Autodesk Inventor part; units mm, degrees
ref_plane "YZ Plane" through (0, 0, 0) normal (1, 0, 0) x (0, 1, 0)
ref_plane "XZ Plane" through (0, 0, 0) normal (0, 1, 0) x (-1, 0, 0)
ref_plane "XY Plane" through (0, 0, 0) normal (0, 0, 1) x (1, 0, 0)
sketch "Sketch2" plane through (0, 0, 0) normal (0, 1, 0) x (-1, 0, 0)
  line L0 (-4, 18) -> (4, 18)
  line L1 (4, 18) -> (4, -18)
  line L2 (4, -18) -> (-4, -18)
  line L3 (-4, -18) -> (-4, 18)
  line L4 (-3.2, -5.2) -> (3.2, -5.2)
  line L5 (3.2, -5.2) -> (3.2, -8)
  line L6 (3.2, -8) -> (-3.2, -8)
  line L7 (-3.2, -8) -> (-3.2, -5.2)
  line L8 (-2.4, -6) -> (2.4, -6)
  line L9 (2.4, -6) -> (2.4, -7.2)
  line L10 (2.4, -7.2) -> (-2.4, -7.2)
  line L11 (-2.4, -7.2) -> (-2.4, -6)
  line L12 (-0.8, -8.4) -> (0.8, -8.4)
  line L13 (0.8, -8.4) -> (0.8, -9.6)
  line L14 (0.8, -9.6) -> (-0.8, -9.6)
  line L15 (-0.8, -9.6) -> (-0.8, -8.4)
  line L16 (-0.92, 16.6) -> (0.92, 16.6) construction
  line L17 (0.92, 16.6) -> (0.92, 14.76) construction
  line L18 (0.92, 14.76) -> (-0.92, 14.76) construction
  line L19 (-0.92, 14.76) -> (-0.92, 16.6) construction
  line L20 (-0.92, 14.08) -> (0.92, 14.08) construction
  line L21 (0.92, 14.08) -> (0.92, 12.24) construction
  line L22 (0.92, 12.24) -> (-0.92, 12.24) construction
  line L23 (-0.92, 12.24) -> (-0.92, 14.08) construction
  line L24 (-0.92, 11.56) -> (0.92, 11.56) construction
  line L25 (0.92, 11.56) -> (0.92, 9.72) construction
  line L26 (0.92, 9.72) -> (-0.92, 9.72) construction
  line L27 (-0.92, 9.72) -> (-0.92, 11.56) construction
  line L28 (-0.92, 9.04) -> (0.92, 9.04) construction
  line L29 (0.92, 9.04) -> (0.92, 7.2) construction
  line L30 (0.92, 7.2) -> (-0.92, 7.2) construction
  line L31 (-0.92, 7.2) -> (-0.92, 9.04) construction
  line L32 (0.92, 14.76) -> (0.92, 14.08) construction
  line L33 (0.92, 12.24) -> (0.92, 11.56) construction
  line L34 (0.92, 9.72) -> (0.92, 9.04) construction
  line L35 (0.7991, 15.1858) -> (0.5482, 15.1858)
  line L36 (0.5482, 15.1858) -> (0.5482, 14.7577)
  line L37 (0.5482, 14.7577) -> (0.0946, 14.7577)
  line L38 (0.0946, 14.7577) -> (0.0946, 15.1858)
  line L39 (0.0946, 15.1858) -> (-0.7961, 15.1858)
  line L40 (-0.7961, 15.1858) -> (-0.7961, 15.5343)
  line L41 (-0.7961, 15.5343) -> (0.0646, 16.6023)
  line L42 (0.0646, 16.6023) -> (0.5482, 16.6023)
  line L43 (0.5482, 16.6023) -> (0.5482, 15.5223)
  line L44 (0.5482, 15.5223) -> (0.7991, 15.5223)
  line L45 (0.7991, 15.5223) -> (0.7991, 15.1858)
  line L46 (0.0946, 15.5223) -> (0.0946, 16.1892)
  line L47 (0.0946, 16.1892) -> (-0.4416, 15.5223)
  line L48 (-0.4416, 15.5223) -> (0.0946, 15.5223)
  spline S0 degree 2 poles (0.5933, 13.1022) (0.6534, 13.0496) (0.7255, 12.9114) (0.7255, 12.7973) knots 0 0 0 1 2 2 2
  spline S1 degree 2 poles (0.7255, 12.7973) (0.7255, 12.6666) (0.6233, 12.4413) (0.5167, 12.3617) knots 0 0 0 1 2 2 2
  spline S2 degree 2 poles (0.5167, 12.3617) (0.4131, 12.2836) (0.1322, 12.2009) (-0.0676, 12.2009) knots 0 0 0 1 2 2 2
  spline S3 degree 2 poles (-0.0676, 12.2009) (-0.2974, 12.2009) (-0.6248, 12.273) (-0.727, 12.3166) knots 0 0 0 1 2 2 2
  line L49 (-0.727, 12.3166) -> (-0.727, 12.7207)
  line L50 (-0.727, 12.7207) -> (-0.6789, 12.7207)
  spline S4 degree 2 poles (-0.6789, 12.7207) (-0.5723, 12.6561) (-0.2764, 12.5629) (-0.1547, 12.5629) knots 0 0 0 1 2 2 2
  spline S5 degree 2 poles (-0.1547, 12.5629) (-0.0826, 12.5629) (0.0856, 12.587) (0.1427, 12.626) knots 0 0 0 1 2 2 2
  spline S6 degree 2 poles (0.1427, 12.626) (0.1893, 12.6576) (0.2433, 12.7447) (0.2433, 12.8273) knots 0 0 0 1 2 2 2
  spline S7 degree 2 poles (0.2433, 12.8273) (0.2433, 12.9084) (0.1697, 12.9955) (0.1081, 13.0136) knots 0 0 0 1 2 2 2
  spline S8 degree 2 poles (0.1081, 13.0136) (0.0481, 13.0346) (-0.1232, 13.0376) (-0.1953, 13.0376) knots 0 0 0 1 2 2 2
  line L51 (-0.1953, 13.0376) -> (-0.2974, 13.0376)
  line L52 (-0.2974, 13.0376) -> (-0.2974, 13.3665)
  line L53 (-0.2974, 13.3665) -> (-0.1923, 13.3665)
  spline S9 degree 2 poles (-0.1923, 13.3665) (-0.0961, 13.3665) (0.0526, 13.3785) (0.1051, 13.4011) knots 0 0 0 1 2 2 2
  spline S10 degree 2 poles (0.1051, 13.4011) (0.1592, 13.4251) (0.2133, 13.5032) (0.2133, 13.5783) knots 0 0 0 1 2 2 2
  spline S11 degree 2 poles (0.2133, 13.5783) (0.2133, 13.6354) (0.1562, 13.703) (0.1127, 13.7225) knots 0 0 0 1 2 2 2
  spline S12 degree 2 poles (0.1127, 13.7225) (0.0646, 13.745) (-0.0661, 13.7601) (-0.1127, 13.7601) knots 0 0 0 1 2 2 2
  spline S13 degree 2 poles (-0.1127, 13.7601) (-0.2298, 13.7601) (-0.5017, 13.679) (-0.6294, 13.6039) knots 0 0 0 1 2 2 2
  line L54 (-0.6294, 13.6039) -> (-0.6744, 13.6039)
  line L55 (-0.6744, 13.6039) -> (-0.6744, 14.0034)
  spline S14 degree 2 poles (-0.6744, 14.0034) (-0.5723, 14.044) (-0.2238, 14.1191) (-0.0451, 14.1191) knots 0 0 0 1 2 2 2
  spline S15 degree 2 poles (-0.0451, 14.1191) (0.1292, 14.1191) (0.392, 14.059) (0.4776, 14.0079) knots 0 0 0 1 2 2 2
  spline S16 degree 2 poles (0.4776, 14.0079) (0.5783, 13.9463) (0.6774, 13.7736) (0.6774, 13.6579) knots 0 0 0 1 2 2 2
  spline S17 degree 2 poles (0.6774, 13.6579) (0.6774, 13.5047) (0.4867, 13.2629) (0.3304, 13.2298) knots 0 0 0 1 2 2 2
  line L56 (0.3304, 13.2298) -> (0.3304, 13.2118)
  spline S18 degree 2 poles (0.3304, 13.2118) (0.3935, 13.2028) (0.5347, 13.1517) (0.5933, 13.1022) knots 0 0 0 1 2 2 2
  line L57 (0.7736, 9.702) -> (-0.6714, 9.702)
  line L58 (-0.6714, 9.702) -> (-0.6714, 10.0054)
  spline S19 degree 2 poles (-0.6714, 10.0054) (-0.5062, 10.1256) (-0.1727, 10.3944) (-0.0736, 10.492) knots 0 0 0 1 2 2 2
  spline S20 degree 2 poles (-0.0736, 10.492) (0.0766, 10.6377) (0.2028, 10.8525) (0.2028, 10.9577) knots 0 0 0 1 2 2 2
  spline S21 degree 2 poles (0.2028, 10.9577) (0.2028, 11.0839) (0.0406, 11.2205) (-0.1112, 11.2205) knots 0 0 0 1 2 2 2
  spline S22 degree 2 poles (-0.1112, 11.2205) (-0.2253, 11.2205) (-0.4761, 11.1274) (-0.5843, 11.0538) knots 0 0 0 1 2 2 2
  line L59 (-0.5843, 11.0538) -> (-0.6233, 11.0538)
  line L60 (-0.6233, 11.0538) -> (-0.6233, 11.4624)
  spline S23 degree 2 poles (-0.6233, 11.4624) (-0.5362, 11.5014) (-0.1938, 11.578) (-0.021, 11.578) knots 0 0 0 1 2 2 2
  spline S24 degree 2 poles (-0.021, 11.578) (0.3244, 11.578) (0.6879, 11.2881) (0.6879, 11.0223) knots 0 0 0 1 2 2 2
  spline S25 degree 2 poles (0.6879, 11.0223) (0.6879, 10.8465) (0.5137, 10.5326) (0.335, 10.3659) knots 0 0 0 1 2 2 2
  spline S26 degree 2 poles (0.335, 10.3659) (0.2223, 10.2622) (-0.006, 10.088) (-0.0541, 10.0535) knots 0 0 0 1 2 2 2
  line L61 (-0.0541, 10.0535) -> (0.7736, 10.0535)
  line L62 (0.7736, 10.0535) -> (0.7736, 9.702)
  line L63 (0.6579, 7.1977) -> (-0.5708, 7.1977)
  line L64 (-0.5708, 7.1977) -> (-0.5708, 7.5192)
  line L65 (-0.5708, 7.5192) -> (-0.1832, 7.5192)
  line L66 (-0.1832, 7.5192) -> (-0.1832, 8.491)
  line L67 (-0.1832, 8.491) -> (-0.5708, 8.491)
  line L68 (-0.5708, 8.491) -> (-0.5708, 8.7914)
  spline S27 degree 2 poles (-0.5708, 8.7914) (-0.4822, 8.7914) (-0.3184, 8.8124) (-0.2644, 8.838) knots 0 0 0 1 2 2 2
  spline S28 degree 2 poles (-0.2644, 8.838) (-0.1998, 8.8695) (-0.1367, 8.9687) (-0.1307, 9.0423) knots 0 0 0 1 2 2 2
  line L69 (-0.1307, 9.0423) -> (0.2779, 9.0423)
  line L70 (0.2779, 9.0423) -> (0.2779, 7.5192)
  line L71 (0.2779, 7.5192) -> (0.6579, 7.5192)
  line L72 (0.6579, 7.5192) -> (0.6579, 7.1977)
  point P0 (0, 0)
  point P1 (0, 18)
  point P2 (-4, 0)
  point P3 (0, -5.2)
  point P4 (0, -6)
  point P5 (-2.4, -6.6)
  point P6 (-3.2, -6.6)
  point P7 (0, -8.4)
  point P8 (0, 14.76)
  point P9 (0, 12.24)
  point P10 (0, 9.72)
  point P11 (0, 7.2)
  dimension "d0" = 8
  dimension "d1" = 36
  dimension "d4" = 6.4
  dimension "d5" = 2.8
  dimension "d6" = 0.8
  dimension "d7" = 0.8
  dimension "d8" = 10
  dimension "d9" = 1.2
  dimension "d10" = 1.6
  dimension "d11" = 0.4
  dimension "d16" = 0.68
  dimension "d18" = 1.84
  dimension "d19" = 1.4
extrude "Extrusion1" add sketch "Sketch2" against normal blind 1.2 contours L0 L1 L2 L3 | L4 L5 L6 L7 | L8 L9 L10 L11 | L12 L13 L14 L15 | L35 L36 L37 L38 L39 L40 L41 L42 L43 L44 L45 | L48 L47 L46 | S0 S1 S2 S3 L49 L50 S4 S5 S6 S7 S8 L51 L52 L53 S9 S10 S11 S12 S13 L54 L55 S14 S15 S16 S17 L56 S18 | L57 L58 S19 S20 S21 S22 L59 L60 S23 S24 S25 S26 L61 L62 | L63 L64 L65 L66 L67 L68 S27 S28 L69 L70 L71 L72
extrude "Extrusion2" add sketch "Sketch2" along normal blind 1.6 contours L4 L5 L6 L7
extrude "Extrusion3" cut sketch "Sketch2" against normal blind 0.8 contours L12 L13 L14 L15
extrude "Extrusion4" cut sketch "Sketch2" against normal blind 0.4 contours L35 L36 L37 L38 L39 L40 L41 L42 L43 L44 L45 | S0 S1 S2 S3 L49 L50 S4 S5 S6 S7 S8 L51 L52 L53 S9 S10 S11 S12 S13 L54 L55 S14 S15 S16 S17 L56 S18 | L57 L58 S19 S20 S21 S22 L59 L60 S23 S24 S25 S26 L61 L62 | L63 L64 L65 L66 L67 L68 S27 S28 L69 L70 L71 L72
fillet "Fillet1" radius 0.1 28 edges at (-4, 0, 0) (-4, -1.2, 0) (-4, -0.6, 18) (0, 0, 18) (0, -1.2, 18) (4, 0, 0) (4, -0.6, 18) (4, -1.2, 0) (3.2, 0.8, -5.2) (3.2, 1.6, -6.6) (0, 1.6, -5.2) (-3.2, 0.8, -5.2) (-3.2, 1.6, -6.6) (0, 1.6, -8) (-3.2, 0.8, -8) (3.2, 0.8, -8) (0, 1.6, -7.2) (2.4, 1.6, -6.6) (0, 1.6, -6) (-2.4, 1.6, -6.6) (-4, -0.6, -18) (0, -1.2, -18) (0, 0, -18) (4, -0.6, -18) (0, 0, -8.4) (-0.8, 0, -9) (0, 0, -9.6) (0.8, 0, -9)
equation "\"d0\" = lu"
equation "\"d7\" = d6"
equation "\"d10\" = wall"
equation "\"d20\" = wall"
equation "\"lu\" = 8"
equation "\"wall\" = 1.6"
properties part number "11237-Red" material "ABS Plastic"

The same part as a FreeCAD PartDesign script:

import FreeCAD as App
import Part
import Sketcher

V = App.Vector
Q = App.Units.Quantity


def edges_at(feature, points):
    """Names of the edges that pass closest to the given points."""
    edges = feature.Shape.Edges
    near = lambda p: min(range(len(edges)), key=lambda i: edges[i].distToShape(Part.Vertex(*p))[0])
    return sorted({f"Edge{near(p) + 1}" for p in points})


def add_polygon(sketch, points):
    """Adds a closed chain of lines whose ends are joined by coincident constraints."""
    first, n = sketch.GeometryCount, len(points)
    for a, b in zip(points, points[1:] + points[:1]):
        sketch.addGeometry(Part.LineSegment(App.Vector(*a, 0), App.Vector(*b, 0)), False)
    for i in range(n):
        sketch.addConstraint(Sketcher.Constraint("Coincident", first + i, 2, first + (i + 1) % n, 1))

doc = App.newDocument("Part")
body = doc.addObject("PartDesign::Body", "Body")

# Sketch on XZ plane
sketch1 = body.newObject("Sketcher::SketchObject", "Sketch")
sketch1.AttachmentSupport = (doc.getObject("XZ_Plane"), [""])
sketch1.MapMode = "FlatFace"
add_polygon(sketch1, [(-4, 18), (4, 18), (4, -18), (-4, -18)])  # lines 0-3
sketch1.addConstraint([
    Sketcher.Constraint("Horizontal", 0),
    Sketcher.Constraint("Vertical", 1),
    Sketcher.Constraint("Horizontal", 2),
    Sketcher.Constraint("Vertical", 3),
    Sketcher.Constraint("Symmetric", 0, 2, 2, 2, -1, 1),
    Sketcher.Constraint("DistanceX", 0, 1, 0, 2, Q("8 mm")),
    Sketcher.Constraint("DistanceY", 1, 2, 1, 1, Q("36 mm")),
])
pad1 = body.newObject("PartDesign::Pad", "Pad")
pad1.Profile = sketch1
pad1.Length = 1.2

# Sketch on XZ plane
sketch2 = body.newObject("Sketcher::SketchObject", "Sketch001")
sketch2.AttachmentSupport = (doc.getObject("XZ_Plane"), [""])
sketch2.MapMode = "FlatFace"
add_polygon(sketch2, [(-3.2, -5.2), (3.2, -5.2), (3.2, -8), (-3.2, -8)])  # lines 0-3
add_polygon(sketch2, [(2.4, -7.2), (2.4, -6), (-2.4, -6), (-2.4, -7.2)])  # lines 4-7
sketch2.addConstraint([
    Sketcher.Constraint("Horizontal", 0),
    Sketcher.Constraint("Vertical", 1),
    Sketcher.Constraint("Horizontal", 2),
    Sketcher.Constraint("Vertical", 3),
    Sketcher.Constraint("Vertical", 4),
    Sketcher.Constraint("Horizontal", 5),
    Sketcher.Constraint("Vertical", 6),
    Sketcher.Constraint("Horizontal", 7),
    Sketcher.Constraint("DistanceX", 0, 1, 0, 2, Q("6.4 mm")),
    Sketcher.Constraint("DistanceY", 1, 2, 1, 1, Q("2.8 mm")),
    Sketcher.Constraint("DistanceY", 4, 1, 4, 2, Q("1.2 mm")),
    Sketcher.Constraint("DistanceY", 1, 2, -1, 1, Q("8 mm")),
    Sketcher.Constraint("DistanceX", 4, 2, 0, 2, Q("0.8 mm")),
    Sketcher.Constraint("DistanceY", 4, 2, 0, 2, Q("0.8 mm")),
    Sketcher.Constraint("DistanceX", 3, 2, 5, 2, Q("0.8 mm")),
    Sketcher.Constraint("DistanceX", -1, 1, 0, 2, Q("3.2 mm")),
])
pad2 = body.newObject("PartDesign::Pad", "Pad001")
pad2.Profile = sketch2
pad2.Length = 1.6
pad2.Reversed = True

# Sketch on XZ plane
sketch3 = body.newObject("Sketcher::SketchObject", "Sketch002")
sketch3.AttachmentSupport = (doc.getObject("XZ_Plane"), [""])
sketch3.MapMode = "FlatFace"
add_polygon(sketch3, [(-0.8, -8.4), (0.8, -8.4), (0.8, -9.6), (-0.8, -9.6)])  # lines 0-3
sketch3.addConstraint([
    Sketcher.Constraint("Horizontal", 0),
    Sketcher.Constraint("Vertical", 1),
    Sketcher.Constraint("Horizontal", 2),
    Sketcher.Constraint("Vertical", 3),
    Sketcher.Constraint("DistanceX", 0, 1, 0, 2, Q("1.6 mm")),
    Sketcher.Constraint("DistanceY", 1, 2, 1, 1, Q("1.2 mm")),
    Sketcher.Constraint("DistanceX", -1, 1, 0, 2, Q("0.8 mm")),
    Sketcher.Constraint("DistanceY", 0, 2, -1, 1, Q("8.4 mm")),
])
pocket1 = body.newObject("PartDesign::Pocket", "Pocket")
pocket1.Profile = sketch3
pocket1.Length = 0.8
pocket1.Reversed = True

# Sketch on XZ plane
sketch4 = body.newObject("Sketcher::SketchObject", "Sketch003")
sketch4.AttachmentSupport = (doc.getObject("XZ_Plane"), [""])
sketch4.MapMode = "FlatFace"
add_polygon(sketch4, [(-0.5482, 15.1858), (-0.7991, 15.1858), (-0.7991, 15.5223), (-0.5482, 15.5223), (-0.5482, 16.6023), (-0.0646, 16.6023), (0.7961, 15.5343), (0.7961, 15.1858), (-0.0946, 15.1858), (-0.0946, 14.7577), (-0.5482, 14.7577)])  # lines 0-10
add_polygon(sketch4, [(-0.0946, 16.1892), (-0.0946, 15.5223), (0.4416, 15.5223)])  # lines 11-13
sketch4.addGeometry(Part.BSplineCurve([V(-0.5933, 13.1022, 0), V(-0.6534, 13.0496, 0), V(-0.7255, 12.9114, 0), V(-0.7255, 12.7973, 0)], [3, 1, 3], [0, 1, 2], False, 2, [1, 1, 1, 1], False), False)  # 14
sketch4.addGeometry(Part.BSplineCurve([V(-0.3304, 13.2118, 0), V(-0.3935, 13.2028, 0), V(-0.5347, 13.1517, 0), V(-0.5933, 13.1022, 0)], [3, 1, 3], [0, 1, 2], False, 2, [1, 1, 1, 1], False), False)  # 15
sketch4.addGeometry(Part.LineSegment(V(-0.3304, 13.2118, 0), V(-0.3304, 13.2298, 0)), False)  # 16
sketch4.addGeometry(Part.BSplineCurve([V(-0.6774, 13.6579, 0), V(-0.6774, 13.5047, 0), V(-0.4867, 13.2629, 0), V(-0.3304, 13.2298, 0)], [3, 1, 3], [0, 1, 2], False, 2, [1, 1, 1, 1], False), False)  # 17
sketch4.addGeometry(Part.BSplineCurve([V(-0.4776, 14.0079, 0), V(-0.5783, 13.9463, 0), V(-0.6774, 13.7736, 0), V(-0.6774, 13.6579, 0)], [3, 1, 3], [0, 1, 2], False, 2, [1, 1, 1, 1], False), False)  # 18
sketch4.addGeometry(Part.BSplineCurve([V(0.0451, 14.1191, 0), V(-0.1292, 14.1191, 0), V(-0.392, 14.059, 0), V(-0.4776, 14.0079, 0)], [3, 1, 3], [0, 1, 2], False, 2, [1, 1, 1, 1], False), False)  # 19
sketch4.addGeometry(Part.BSplineCurve([V(0.6744, 14.0034, 0), V(0.5723, 14.044, 0), V(0.2238, 14.1191, 0), V(0.0451, 14.1191, 0)], [3, 1, 3], [0, 1, 2], False, 2, [1, 1, 1, 1], False), False)  # 20
sketch4.addGeometry(Part.LineSegment(V(0.6744, 14.0034, 0), V(0.6744, 13.6039, 0)), False)  # 21
sketch4.addGeometry(Part.LineSegment(V(0.6744, 13.6039, 0), V(0.6294, 13.6039, 0)), False)  # 22
sketch4.addGeometry(Part.BSplineCurve([V(0.1127, 13.7601, 0), V(0.2298, 13.7601, 0), V(0.5017, 13.679, 0), V(0.6294, 13.6039, 0)], [3, 1, 3], [0, 1, 2], False, 2, [1, 1, 1, 1], False), False)  # 23
sketch4.addGeometry(Part.BSplineCurve([V(-0.1127, 13.7225, 0), V(-0.0646, 13.745, 0), V(0.0661, 13.7601, 0), V(0.1127, 13.7601, 0)], [3, 1, 3], [0, 1, 2], False, 2, [1, 1, 1, 1], False), False)  # 24
sketch4.addGeometry(Part.BSplineCurve([V(-0.2133, 13.5783, 0), V(-0.2133, 13.6354, 0), V(-0.1562, 13.703, 0), V(-0.1127, 13.7225, 0)], [3, 1, 3], [0, 1, 2], False, 2, [1, 1, 1, 1], False), False)  # 25
sketch4.addGeometry(Part.BSplineCurve([V(-0.1051, 13.4011, 0), V(-0.1592, 13.4251, 0), V(-0.2133, 13.5032, 0), V(-0.2133, 13.5783, 0)], [3, 1, 3], [0, 1, 2], False, 2, [1, 1, 1, 1], False), False)  # 26
sketch4.addGeometry(Part.BSplineCurve([V(0.1923, 13.3665, 0), V(0.0961, 13.3665, 0), V(-0.0526, 13.3785, 0), V(-0.1051, 13.4011, 0)], [3, 1, 3], [0, 1, 2], False, 2, [1, 1, 1, 1], False), False)  # 27
sketch4.addGeometry(Part.LineSegment(V(0.1923, 13.3665, 0), V(0.2974, 13.3665, 0)), False)  # 28
sketch4.addGeometry(Part.LineSegment(V(0.2974, 13.3665, 0), V(0.2974, 13.0376, 0)), False)  # 29
sketch4.addGeometry(Part.LineSegment(V(0.2974, 13.0376, 0), V(0.1953, 13.0376, 0)), False)  # 30
sketch4.addGeometry(Part.BSplineCurve([V(-0.1081, 13.0136, 0), V(-0.0481, 13.0346, 0), V(0.1232, 13.0376, 0), V(0.1953, 13.0376, 0)], [3, 1, 3], [0, 1, 2], False, 2, [1, 1, 1, 1], False), False)  # 31
sketch4.addGeometry(Part.BSplineCurve([V(-0.2433, 12.8273, 0), V(-0.2433, 12.9084, 0), V(-0.1697, 12.9955, 0), V(-0.1081, 13.0136, 0)], [3, 1, 3], [0, 1, 2], False, 2, [1, 1, 1, 1], False), False)  # 32
sketch4.addGeometry(Part.BSplineCurve([V(-0.1427, 12.626, 0), V(-0.1893, 12.6576, 0), V(-0.2433, 12.7447, 0), V(-0.2433, 12.8273, 0)], [3, 1, 3], [0, 1, 2], False, 2, [1, 1, 1, 1], False), False)  # 33
sketch4.addGeometry(Part.BSplineCurve([V(0.1547, 12.5629, 0), V(0.0826, 12.5629, 0), V(-0.0856, 12.587, 0), V(-0.1427, 12.626, 0)], [3, 1, 3], [0, 1, 2], False, 2, [1, 1, 1, 1], False), False)  # 34
sketch4.addGeometry(Part.BSplineCurve([V(0.6789, 12.7207, 0), V(0.5723, 12.6561, 0), V(0.2764, 12.5629, 0), V(0.1547, 12.5629, 0)], [3, 1, 3], [0, 1, 2], False, 2, [1, 1, 1, 1], False), False)  # 35
sketch4.addGeometry(Part.LineSegment(V(0.6789, 12.7207, 0), V(0.727, 12.7207, 0)), False)  # 36
sketch4.addGeometry(Part.LineSegment(V(0.727, 12.7207, 0), V(0.727, 12.3166, 0)), False)  # 37
sketch4.addGeometry(Part.BSplineCurve([V(0.0676, 12.2009, 0), V(0.2974, 12.2009, 0), V(0.6248, 12.273, 0), V(0.727, 12.3166, 0)], [3, 1, 3], [0, 1, 2], False, 2, [1, 1, 1, 1], False), False)  # 38
sketch4.addGeometry(Part.BSplineCurve([V(-0.5167, 12.3617, 0), V(-0.4131, 12.2836, 0), V(-0.1322, 12.2009, 0), V(0.0676, 12.2009, 0)], [3, 1, 3], [0, 1, 2], False, 2, [1, 1, 1, 1], False), False)  # 39
sketch4.addGeometry(Part.BSplineCurve([V(-0.7255, 12.7973, 0), V(-0.7255, 12.6666, 0), V(-0.6233, 12.4413, 0), V(-0.5167, 12.3617, 0)], [3, 1, 3], [0, 1, 2], False, 2, [1, 1, 1, 1], False), False)  # 40
sketch4.addGeometry(Part.LineSegment(V(0.6714, 9.702, 0), V(-0.7736, 9.702, 0)), False)  # 41
sketch4.addGeometry(Part.LineSegment(V(-0.7736, 9.702, 0), V(-0.7736, 10.0535, 0)), False)  # 42
sketch4.addGeometry(Part.LineSegment(V(-0.7736, 10.0535, 0), V(0.0541, 10.0535, 0)), False)  # 43
sketch4.addGeometry(Part.BSplineCurve([V(-0.335, 10.3659, 0), V(-0.2223, 10.2622, 0), V(0.006, 10.088, 0), V(0.0541, 10.0535, 0)], [3, 1, 3], [0, 1, 2], False, 2, [1, 1, 1, 1], False), False)  # 44
sketch4.addGeometry(Part.BSplineCurve([V(-0.6879, 11.0223, 0), V(-0.6879, 10.8465, 0), V(-0.5137, 10.5326, 0), V(-0.335, 10.3659, 0)], [3, 1, 3], [0, 1, 2], False, 2, [1, 1, 1, 1], False), False)  # 45
sketch4.addGeometry(Part.BSplineCurve([V(0.021, 11.578, 0), V(-0.3244, 11.578, 0), V(-0.6879, 11.2881, 0), V(-0.6879, 11.0223, 0)], [3, 1, 3], [0, 1, 2], False, 2, [1, 1, 1, 1], False), False)  # 46
sketch4.addGeometry(Part.BSplineCurve([V(0.6233, 11.4624, 0), V(0.5362, 11.5014, 0), V(0.1938, 11.578, 0), V(0.021, 11.578, 0)], [3, 1, 3], [0, 1, 2], False, 2, [1, 1, 1, 1], False), False)  # 47
sketch4.addGeometry(Part.LineSegment(V(0.6233, 11.4624, 0), V(0.6233, 11.0538, 0)), False)  # 48
sketch4.addGeometry(Part.LineSegment(V(0.6233, 11.0538, 0), V(0.5843, 11.0538, 0)), False)  # 49
sketch4.addGeometry(Part.BSplineCurve([V(0.1112, 11.2205, 0), V(0.2253, 11.2205, 0), V(0.4761, 11.1274, 0), V(0.5843, 11.0538, 0)], [3, 1, 3], [0, 1, 2], False, 2, [1, 1, 1, 1], False), False)  # 50
sketch4.addGeometry(Part.BSplineCurve([V(-0.2028, 10.9577, 0), V(-0.2028, 11.0839, 0), V(-0.0406, 11.2205, 0), V(0.1112, 11.2205, 0)], [3, 1, 3], [0, 1, 2], False, 2, [1, 1, 1, 1], False), False)  # 51
sketch4.addGeometry(Part.BSplineCurve([V(0.0736, 10.492, 0), V(-0.0766, 10.6377, 0), V(-0.2028, 10.8525, 0), V(-0.2028, 10.9577, 0)], [3, 1, 3], [0, 1, 2], False, 2, [1, 1, 1, 1], False), False)  # 52
sketch4.addGeometry(Part.BSplineCurve([V(0.6714, 10.0054, 0), V(0.5062, 10.1256, 0), V(0.1727, 10.3944, 0), V(0.0736, 10.492, 0)], [3, 1, 3], [0, 1, 2], False, 2, [1, 1, 1, 1], False), False)  # 53
sketch4.addGeometry(Part.LineSegment(V(0.6714, 10.0054, 0), V(0.6714, 9.702, 0)), False)  # 54
sketch4.addGeometry(Part.LineSegment(V(0.5708, 7.1977, 0), V(-0.6579, 7.1977, 0)), False)  # 55
sketch4.addGeometry(Part.LineSegment(V(-0.6579, 7.1977, 0), V(-0.6579, 7.5192, 0)), False)  # 56
sketch4.addGeometry(Part.LineSegment(V(-0.6579, 7.5192, 0), V(-0.2779, 7.5192, 0)), False)  # 57
sketch4.addGeometry(Part.LineSegment(V(-0.2779, 7.5192, 0), V(-0.2779, 9.0423, 0)), False)  # 58
sketch4.addGeometry(Part.LineSegment(V(-0.2779, 9.0423, 0), V(0.1307, 9.0423, 0)), False)  # 59
sketch4.addGeometry(Part.BSplineCurve([V(0.2644, 8.838, 0), V(0.1998, 8.8695, 0), V(0.1367, 8.9687, 0), V(0.1307, 9.0423, 0)], [3, 1, 3], [0, 1, 2], False, 2, [1, 1, 1, 1], False), False)  # 60
sketch4.addGeometry(Part.BSplineCurve([V(0.5708, 8.7914, 0), V(0.4822, 8.7914, 0), V(0.3184, 8.8124, 0), V(0.2644, 8.838, 0)], [3, 1, 3], [0, 1, 2], False, 2, [1, 1, 1, 1], False), False)  # 61
sketch4.addGeometry(Part.LineSegment(V(0.5708, 8.7914, 0), V(0.5708, 8.491, 0)), False)  # 62
sketch4.addGeometry(Part.LineSegment(V(0.5708, 8.491, 0), V(0.1832, 8.491, 0)), False)  # 63
sketch4.addGeometry(Part.LineSegment(V(0.1832, 8.491, 0), V(0.1832, 7.5192, 0)), False)  # 64
sketch4.addGeometry(Part.LineSegment(V(0.1832, 7.5192, 0), V(0.5708, 7.5192, 0)), False)  # 65
sketch4.addGeometry(Part.LineSegment(V(0.5708, 7.5192, 0), V(0.5708, 7.1977, 0)), False)  # 66
sketch4.addConstraint([
    Sketcher.Constraint("Block", 14),
    Sketcher.Constraint("Block", 15),
    Sketcher.Constraint("Block", 17),
    Sketcher.Constraint("Block", 18),
    Sketcher.Constraint("Block", 19),
    Sketcher.Constraint("Block", 20),
    Sketcher.Constraint("Block", 23),
    Sketcher.Constraint("Block", 24),
    Sketcher.Constraint("Block", 25),
    Sketcher.Constraint("Block", 26),
    Sketcher.Constraint("Block", 27),
    Sketcher.Constraint("Block", 31),
    Sketcher.Constraint("Block", 32),
    Sketcher.Constraint("Block", 33),
    Sketcher.Constraint("Block", 34),
    Sketcher.Constraint("Block", 35),
    Sketcher.Constraint("Block", 38),
    Sketcher.Constraint("Block", 39),
    Sketcher.Constraint("Block", 40),
    Sketcher.Constraint("Block", 44),
    Sketcher.Constraint("Block", 45),
    Sketcher.Constraint("Block", 46),
    Sketcher.Constraint("Block", 47),
    Sketcher.Constraint("Block", 50),
    Sketcher.Constraint("Block", 51),
    Sketcher.Constraint("Block", 52),
    Sketcher.Constraint("Block", 53),
    Sketcher.Constraint("Block", 60),
    Sketcher.Constraint("Block", 61),
    Sketcher.Constraint("Coincident", 15, 1, 16, 1),
    Sketcher.Constraint("Coincident", 16, 2, 17, 2),
    Sketcher.Constraint("Coincident", 20, 1, 21, 1),
    Sketcher.Constraint("Coincident", 21, 2, 22, 1),
    Sketcher.Constraint("Coincident", 22, 2, 23, 2),
    Sketcher.Constraint("Coincident", 27, 1, 28, 1),
    Sketcher.Constraint("Coincident", 28, 2, 29, 1),
    Sketcher.Constraint("Coincident", 29, 2, 30, 1),
    Sketcher.Constraint("Coincident", 30, 2, 31, 2),
    Sketcher.Constraint("Coincident", 35, 1, 36, 1),
    Sketcher.Constraint("Coincident", 36, 2, 37, 1),
    Sketcher.Constraint("Coincident", 37, 2, 38, 2),
    Sketcher.Constraint("Coincident", 41, 2, 42, 1),
    Sketcher.Constraint("Coincident", 42, 2, 43, 1),
    Sketcher.Constraint("Coincident", 43, 2, 44, 2),
    Sketcher.Constraint("Coincident", 47, 1, 48, 1),
    Sketcher.Constraint("Coincident", 48, 2, 49, 1),
    Sketcher.Constraint("Coincident", 49, 2, 50, 2),
    Sketcher.Constraint("Coincident", 53, 1, 54, 1),
    Sketcher.Constraint("Coincident", 54, 2, 41, 1),
    Sketcher.Constraint("Coincident", 55, 2, 56, 1),
    Sketcher.Constraint("Coincident", 56, 2, 57, 1),
    Sketcher.Constraint("Coincident", 57, 2, 58, 1),
    Sketcher.Constraint("Coincident", 58, 2, 59, 1),
    Sketcher.Constraint("Coincident", 59, 2, 60, 2),
    Sketcher.Constraint("Coincident", 61, 1, 62, 1),
    Sketcher.Constraint("Coincident", 62, 2, 63, 1),
    Sketcher.Constraint("Coincident", 63, 2, 64, 1),
    Sketcher.Constraint("Coincident", 64, 2, 65, 1),
    Sketcher.Constraint("Coincident", 65, 2, 66, 1),
    Sketcher.Constraint("Coincident", 66, 2, 55, 1),
    Sketcher.Constraint("Horizontal", 0),
    Sketcher.Constraint("Vertical", 1),
    Sketcher.Constraint("Horizontal", 2),
    Sketcher.Constraint("Vertical", 3),
    Sketcher.Constraint("Horizontal", 4),
    Sketcher.Constraint("Vertical", 6),
    Sketcher.Constraint("Horizontal", 7),
    Sketcher.Constraint("Vertical", 8),
    Sketcher.Constraint("Horizontal", 9),
    Sketcher.Constraint("Vertical", 10),
    Sketcher.Constraint("Vertical", 11),
    Sketcher.Constraint("Horizontal", 12),
    Sketcher.Constraint("Vertical", 21),
    Sketcher.Constraint("Horizontal", 22),
    Sketcher.Constraint("Horizontal", 28),
    Sketcher.Constraint("Vertical", 29),
    Sketcher.Constraint("Horizontal", 30),
    Sketcher.Constraint("Horizontal", 36),
    Sketcher.Constraint("Vertical", 37),
    Sketcher.Constraint("Horizontal", 41),
    Sketcher.Constraint("Vertical", 42),
    Sketcher.Constraint("Horizontal", 43),
    Sketcher.Constraint("Vertical", 48),
    Sketcher.Constraint("Horizontal", 49),
    Sketcher.Constraint("Vertical", 54),
    Sketcher.Constraint("Horizontal", 55),
    Sketcher.Constraint("Vertical", 56),
    Sketcher.Constraint("Horizontal", 57),
    Sketcher.Constraint("Vertical", 58),
    Sketcher.Constraint("Horizontal", 59),
    Sketcher.Constraint("Vertical", 62),
    Sketcher.Constraint("Horizontal", 63),
    Sketcher.Constraint("Vertical", 64),
    Sketcher.Constraint("Horizontal", 65),
    Sketcher.Constraint("Vertical", 66),
    Sketcher.Constraint("DistanceX", 57, 1, 57, 2, Q("0.38 mm")),
    Sketcher.Constraint("DistanceY", 3, 1, 3, 2, Q("1.08 mm")),
    Sketcher.Constraint("DistanceX", 0, 2, 0, 1, Q("0.251 mm")),
    Sketcher.Constraint("DistanceX", 2, 1, 2, 2, Q("0.251 mm")),
    Sketcher.Constraint("DistanceX", 28, 1, 28, 2, Q("0.105 mm")),
    Sketcher.Constraint("DistanceX", 41, 2, 41, 1, Q("1.445 mm")),
    Sketcher.Constraint("DistanceY", 8, 2, 8, 1, Q("0.428 mm")),
    Sketcher.Constraint("DistanceY", 10, 1, 10, 2, Q("0.428 mm")),
    Sketcher.Constraint("DistanceY", 11, 2, 11, 1, Q("0.667 mm")),
    Sketcher.Constraint("DistanceY", 58, 1, 58, 2, Q("1.523 mm")),
    Sketcher.Constraint("DistanceX", 13, 2, 4, 2, Q("0.03 mm")),
    Sketcher.Constraint("DistanceY", 29, 2, 8, 2, Q("1.72 mm")),
    Sketcher.Constraint("DistanceX", 4, 1, 4, 2, Q("0.4836 mm")),
    Sketcher.Constraint("DistanceX", 7, 2, 7, 1, Q("0.8907 mm")),
    Sketcher.Constraint("DistanceX", 9, 2, 9, 1, Q("0.4536 mm")),
    Sketcher.Constraint("DistanceX", 12, 1, 12, 2, Q("0.5362 mm")),
    Sketcher.Constraint("DistanceX", 55, 2, 55, 1, Q("1.2287 mm")),
    Sketcher.Constraint("DistanceX", 59, 1, 59, 2, Q("0.4086 mm")),
    Sketcher.Constraint("DistanceX", 63, 2, 63, 1, Q("0.3876 mm")),
    Sketcher.Constraint("DistanceY", 1, 1, 1, 2, Q("0.3365 mm")),
    Sketcher.Constraint("DistanceY", 6, 2, 6, 1, Q("0.3485 mm")),
    Sketcher.Constraint("DistanceY", 42, 1, 42, 2, Q("0.3515 mm")),
    Sketcher.Constraint("DistanceY", 56, 1, 56, 2, Q("0.3215 mm")),
    Sketcher.Constraint("DistanceY", 62, 2, 62, 1, Q("0.3004 mm")),
    Sketcher.Constraint("DistanceY", 64, 2, 64, 1, Q("0.9718 mm")),
    Sketcher.Constraint("DistanceX", 0, 2, -1, 1, Q("0.799 mm")),
    Sketcher.Constraint("DistanceY", 12, 2, 5, 2, Q("0.012 mm")),
])
pocket2 = body.newObject("PartDesign::Pocket", "Pocket001")
pocket2.Profile = sketch4
pocket2.Length = 0.4
pocket2.Reversed = True
doc.recompute()

fillet = body.newObject("PartDesign::Fillet", "Fillet")
fillet.Base = (pocket2, edges_at(pocket2, [
    (-4, 0, 0),
    (-4, -1.2, 0),
    (-4, -0.6, 18),
    (0, 0, 18),
    (0, -1.2, 18),
    (4, 0, 0),
    (4, -0.6, 18),
    (4, -1.2, 0),
    (3.2, 0.8, -5.2),
    (3.2, 1.6, -6.6),
    (0, 1.6, -5.2),
    (-3.2, 0.8, -5.2),
    (-3.2, 1.6, -6.6),
    (0, 1.6, -8),
    (-3.2, 0.8, -8),
    (3.2, 0.8, -8),
    (0, 1.6, -7.2),
    (2.4, 1.6, -6.6),
    (0, 1.6, -6),
    (-2.4, 1.6, -6.6),
    (-4, -0.6, -18),
    (0, -1.2, -18),
    (0, 0, -18),
    (4, -0.6, -18),
    (0, 0, -8.4),
    (-0.8, 0, -9),
    (0, 0, -9.6),
    (0.8, 0, -9),
]))
fillet.Radius = 0.1

doc.recompute()
